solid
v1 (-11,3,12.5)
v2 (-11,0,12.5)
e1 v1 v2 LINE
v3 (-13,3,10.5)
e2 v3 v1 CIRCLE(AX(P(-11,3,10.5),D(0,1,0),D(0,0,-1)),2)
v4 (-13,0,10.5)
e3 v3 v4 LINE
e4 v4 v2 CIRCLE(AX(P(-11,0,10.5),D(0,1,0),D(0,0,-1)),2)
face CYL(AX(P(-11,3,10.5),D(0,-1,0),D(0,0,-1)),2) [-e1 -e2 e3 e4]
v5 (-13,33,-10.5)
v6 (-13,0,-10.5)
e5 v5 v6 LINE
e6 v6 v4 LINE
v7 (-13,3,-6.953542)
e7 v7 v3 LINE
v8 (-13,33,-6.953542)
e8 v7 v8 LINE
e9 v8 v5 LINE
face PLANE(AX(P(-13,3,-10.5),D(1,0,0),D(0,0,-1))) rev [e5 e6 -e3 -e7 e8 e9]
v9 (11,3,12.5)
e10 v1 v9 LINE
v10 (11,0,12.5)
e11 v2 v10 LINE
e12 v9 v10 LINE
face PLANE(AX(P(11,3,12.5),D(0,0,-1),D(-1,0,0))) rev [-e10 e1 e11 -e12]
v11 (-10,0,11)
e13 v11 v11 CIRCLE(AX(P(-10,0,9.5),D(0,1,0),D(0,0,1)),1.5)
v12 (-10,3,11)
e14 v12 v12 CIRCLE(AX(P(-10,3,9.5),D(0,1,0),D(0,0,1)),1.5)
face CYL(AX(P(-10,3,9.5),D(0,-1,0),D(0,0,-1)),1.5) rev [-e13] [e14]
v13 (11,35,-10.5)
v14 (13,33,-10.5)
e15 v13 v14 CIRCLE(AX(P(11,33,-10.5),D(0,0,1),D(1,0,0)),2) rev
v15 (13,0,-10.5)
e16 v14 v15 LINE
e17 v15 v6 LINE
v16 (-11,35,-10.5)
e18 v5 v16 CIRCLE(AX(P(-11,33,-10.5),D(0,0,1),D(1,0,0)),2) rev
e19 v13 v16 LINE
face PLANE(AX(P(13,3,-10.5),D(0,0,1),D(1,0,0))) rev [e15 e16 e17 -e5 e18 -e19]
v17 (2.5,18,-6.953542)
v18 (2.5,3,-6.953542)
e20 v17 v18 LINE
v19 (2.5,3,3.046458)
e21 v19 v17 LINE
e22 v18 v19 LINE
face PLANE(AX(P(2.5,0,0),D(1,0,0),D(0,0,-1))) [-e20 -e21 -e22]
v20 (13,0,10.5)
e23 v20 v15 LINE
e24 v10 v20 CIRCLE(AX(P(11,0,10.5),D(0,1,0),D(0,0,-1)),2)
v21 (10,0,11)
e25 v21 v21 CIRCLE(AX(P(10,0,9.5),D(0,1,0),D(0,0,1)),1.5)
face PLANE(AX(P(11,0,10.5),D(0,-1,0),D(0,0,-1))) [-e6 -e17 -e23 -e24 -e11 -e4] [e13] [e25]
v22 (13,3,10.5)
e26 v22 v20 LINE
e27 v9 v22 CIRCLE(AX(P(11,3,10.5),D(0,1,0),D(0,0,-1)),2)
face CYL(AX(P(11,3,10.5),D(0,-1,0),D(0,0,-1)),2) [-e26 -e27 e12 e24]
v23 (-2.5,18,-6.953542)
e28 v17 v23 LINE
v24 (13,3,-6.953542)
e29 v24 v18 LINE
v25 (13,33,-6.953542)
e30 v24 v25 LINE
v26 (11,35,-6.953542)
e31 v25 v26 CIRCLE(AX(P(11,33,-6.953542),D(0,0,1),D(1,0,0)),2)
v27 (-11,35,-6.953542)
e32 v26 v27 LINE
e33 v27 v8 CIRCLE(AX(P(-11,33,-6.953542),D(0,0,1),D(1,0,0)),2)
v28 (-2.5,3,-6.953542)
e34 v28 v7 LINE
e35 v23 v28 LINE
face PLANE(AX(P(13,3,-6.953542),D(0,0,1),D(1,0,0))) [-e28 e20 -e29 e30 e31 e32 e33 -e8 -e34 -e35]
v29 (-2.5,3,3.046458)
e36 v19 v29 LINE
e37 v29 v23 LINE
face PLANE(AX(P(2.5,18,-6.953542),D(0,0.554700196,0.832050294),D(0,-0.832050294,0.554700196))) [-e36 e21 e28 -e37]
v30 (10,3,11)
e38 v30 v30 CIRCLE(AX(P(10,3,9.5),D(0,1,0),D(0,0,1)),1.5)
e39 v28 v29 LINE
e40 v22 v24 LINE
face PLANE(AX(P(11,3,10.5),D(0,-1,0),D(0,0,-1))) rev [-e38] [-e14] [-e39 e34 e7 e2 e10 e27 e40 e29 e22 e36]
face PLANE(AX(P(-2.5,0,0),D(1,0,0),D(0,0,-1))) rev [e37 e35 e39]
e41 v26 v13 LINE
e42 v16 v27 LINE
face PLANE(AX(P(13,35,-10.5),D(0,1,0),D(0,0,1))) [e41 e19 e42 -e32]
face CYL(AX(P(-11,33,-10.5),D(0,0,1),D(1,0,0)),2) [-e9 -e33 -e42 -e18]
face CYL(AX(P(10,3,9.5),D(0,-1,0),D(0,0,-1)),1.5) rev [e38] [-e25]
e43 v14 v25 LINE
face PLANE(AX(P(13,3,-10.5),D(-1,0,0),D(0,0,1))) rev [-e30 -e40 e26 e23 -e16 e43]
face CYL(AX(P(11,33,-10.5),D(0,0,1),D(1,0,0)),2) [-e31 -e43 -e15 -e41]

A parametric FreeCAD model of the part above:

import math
import FreeCAD as App
import Part
import Sketcher

V = App.Vector


def edges_at(feature, points):
    """Names of the edges that pass closest to the given points."""
    edges = feature.Shape.Edges
    near = lambda p: min(range(len(edges)), key=lambda i: edges[i].distToShape(Part.Vertex(*p))[0])
    return sorted({f"Edge{near(p) + 1}" for p in points})

doc = App.newDocument("Part")
params = doc.addObject("Spreadsheet::Sheet", "Params")
for row, (alias, value) in enumerate([
    ("sketch1_diameter", "3 mm"),
    ("sketch1_radius", "2 mm"),
    ("sketch1_width", "26 mm"),
    ("sketch1_height", "21 mm"),
    ("pad1_length", "3 mm"),
    ("sketch2_width", "32 mm"),
    ("pad2_length", "26 mm"),
    ("sketch3_width", "15 mm"),
    ("sketch3_height", "10 mm"),
    ("pad3_length", "5 mm"),
    ("fillet_radius", "2 mm"),
    ("fillet2_radius", "2 mm"),
], start=1):
    params.set(f"A{row}", alias)
    params.set(f"B{row}", "=" + value)
    params.setAlias(f"B{row}", alias)

body = doc.addObject("PartDesign::Body", "Body")

# Sketch on XZ plane
sketch1 = body.newObject("Sketcher::SketchObject", "Sketch")
sketch1.AttachmentSupport = (doc.getObject("XZ_Plane"), [""])
sketch1.MapMode = "FlatFace"
sketch1.addGeometry(Part.LineSegment(V(13, -10.5, 0), V(-13, -10.5, 0)), False)
sketch1.addGeometry(Part.LineSegment(V(-13, -10.5, 0), V(-13, 10.5, 0)), False)
sketch1.addGeometry(Part.ArcOfCircle(Part.Circle(V(-11, 10.5, 0), V(0, 0, 1), 2), math.radians(90), math.radians(180)), False)
sketch1.addGeometry(Part.LineSegment(V(-11, 12.5, 0), V(11, 12.5, 0)), False)
sketch1.addGeometry(Part.ArcOfCircle(Part.Circle(V(11, 10.5, 0), V(0, 0, 1), 2), math.radians(0), math.radians(90)), False)
sketch1.addGeometry(Part.LineSegment(V(13, 10.5, 0), V(13, -10.5, 0)), False)
sketch1.addGeometry(Part.Circle(V(-10, 9.5, 0), V(0, 0, 1), 1.5), False)
sketch1.addGeometry(Part.Circle(V(10, 9.5, 0), V(0, 0, 1), 1.5), False)
sketch1.addConstraint(Sketcher.Constraint("Coincident", 0, 2, 1, 1))
sketch1.addConstraint(Sketcher.Constraint("Tangent", 1, 2, 2, 2))
sketch1.addConstraint(Sketcher.Constraint("Tangent", 2, 1, 3, 1))
sketch1.addConstraint(Sketcher.Constraint("Tangent", 3, 2, 4, 2))
sketch1.addConstraint(Sketcher.Constraint("Tangent", 4, 1, 5, 1))
sketch1.addConstraint(Sketcher.Constraint("Coincident", 5, 2, 0, 1))
sketch1.addConstraint(Sketcher.Constraint("Horizontal", 0))
sketch1.addConstraint(Sketcher.Constraint("Vertical", 1))
sketch1.addConstraint(Sketcher.Constraint("Horizontal", 3))
sketch1.addConstraint(Sketcher.Constraint("Vertical", 5))
sketch1.addConstraint(Sketcher.Constraint("Equal", 2, 4))
sketch1.addConstraint(Sketcher.Constraint("Equal", 6, 7))
sketch1.addConstraint(Sketcher.Constraint("Symmetric", 0, 2, 4, 1, -1, 1))
sketch1.addConstraint(Sketcher.Constraint("Symmetric", 6, 3, 7, 3, -2))
sketch1.addConstraint(Sketcher.Constraint("Diameter", 6, 3.0))
sketch1.addConstraint(Sketcher.Constraint("Radius", 2, 2.0))
sketch1.addConstraint(Sketcher.Constraint("DistanceX", 0, 2, 0, 1, 26.0))
sketch1.addConstraint(Sketcher.Constraint("DistanceY", 1, 1, 1, 2, 21.0))
sketch1.addConstraint(Sketcher.Constraint("DistanceX", 6, 3, -1, 1, 10.0))
sketch1.addConstraint(Sketcher.Constraint("DistanceY", 6, 3, 2, 3, 1.0))
sketch1.setExpression("Constraints[14]", "Params.sketch1_diameter")
sketch1.setExpression("Constraints[15]", "Params.sketch1_radius")
sketch1.setExpression("Constraints[16]", "Params.sketch1_width")
sketch1.setExpression("Constraints[17]", "Params.sketch1_height")
pad1 = body.newObject("PartDesign::Pad", "Pad")
pad1.Profile = sketch1
pad1.setExpression("Length", "Params.pad1_length")
pad1.Reversed = True

# Sketch on YZ plane
sketch2 = body.newObject("Sketcher::SketchObject", "Sketch001")
sketch2.AttachmentSupport = (doc.getObject("YZ_Plane"), [""])
sketch2.MapMode = "FlatFace"
sketch2.AttachmentOffset = App.Placement(V(0, 0, -13), App.Rotation())
sketch2.addGeometry(Part.LineSegment(V(35, -10.5, 0), V(3, -10.5, 0)), False)
sketch2.addGeometry(Part.LineSegment(V(3, -10.5, 0), V(3, -7, 0)), False)
sketch2.addGeometry(Part.LineSegment(V(3, -7, 0), V(35, -7, 0)), False)
sketch2.addGeometry(Part.LineSegment(V(35, -7, 0), V(35, -10.5, 0)), False)
sketch2.addConstraint(Sketcher.Constraint("Coincident", 0, 2, 1, 1))
sketch2.addConstraint(Sketcher.Constraint("Coincident", 1, 2, 2, 1))
sketch2.addConstraint(Sketcher.Constraint("Coincident", 2, 2, 3, 1))
sketch2.addConstraint(Sketcher.Constraint("Coincident", 3, 2, 0, 1))
sketch2.addConstraint(Sketcher.Constraint("Horizontal", 0))
sketch2.addConstraint(Sketcher.Constraint("Vertical", 1))
sketch2.addConstraint(Sketcher.Constraint("Horizontal", 2))
sketch2.addConstraint(Sketcher.Constraint("Vertical", 3))
sketch2.addConstraint(Sketcher.Constraint("DistanceX", 0, 2, 0, 1, 32.0))
sketch2.addConstraint(Sketcher.Constraint("DistanceX", -1, 1, 0, 2, 3.0))
sketch2.addConstraint(Sketcher.Constraint("DistanceY", 0, 2, -1, 1, 10.5))
sketch2.addConstraint(Sketcher.Constraint("DistanceY", 1, 1, 1, 2, 3.546458))
sketch2.setExpression("Constraints[8]", "Params.sketch2_width")
pad2 = body.newObject("PartDesign::Pad", "Pad001")
pad2.Profile = sketch2
pad2.setExpression("Length", "Params.pad2_length")

# Sketch on YZ plane
sketch3 = body.newObject("Sketcher::SketchObject", "Sketch002")
sketch3.AttachmentSupport = (doc.getObject("YZ_Plane"), [""])
sketch3.MapMode = "FlatFace"
sketch3.AttachmentOffset = App.Placement(V(0, 0, -2.5), App.Rotation())
sketch3.addGeometry(Part.LineSegment(V(3, 3, 0), V(18, -7, 0)), False)
sketch3.addGeometry(Part.LineSegment(V(18, -7, 0), V(3, -7, 0)), False)
sketch3.addGeometry(Part.LineSegment(V(3, -7, 0), V(3, 3, 0)), False)
sketch3.addConstraint(Sketcher.Constraint("Coincident", 0, 2, 1, 1))
sketch3.addConstraint(Sketcher.Constraint("Coincident", 1, 2, 2, 1))
sketch3.addConstraint(Sketcher.Constraint("Coincident", 2, 2, 0, 1))
sketch3.addConstraint(Sketcher.Constraint("Horizontal", 1))
sketch3.addConstraint(Sketcher.Constraint("Vertical", 2))
sketch3.addConstraint(Sketcher.Constraint("DistanceX", 1, 2, 1, 1, 15.0))
sketch3.addConstraint(Sketcher.Constraint("DistanceY", 2, 1, 2, 2, 10.0))
sketch3.addConstraint(Sketcher.Constraint("DistanceX", -1, 1, 0, 2, 18.0))
sketch3.addConstraint(Sketcher.Constraint("DistanceY", 0, 2, -1, 1, 6.953542))
sketch3.setExpression("Constraints[5]", "Params.sketch3_width")
sketch3.setExpression("Constraints[6]", "Params.sketch3_height")
pad3 = body.newObject("PartDesign::Pad", "Pad002")
pad3.Profile = sketch3
pad3.setExpression("Length", "Params.pad3_length")
doc.recompute()

fillet = body.newObject("PartDesign::Fillet", "Fillet")
fillet.Base = (pad3, edges_at(pad3, [(-13, 35, -8.727)]))
fillet.setExpression("Radius", "Params.fillet_radius")
doc.recompute()

fillet2 = body.newObject("PartDesign::Fillet", "Fillet001")
fillet2.Base = (fillet, edges_at(fillet, [(13, 35, -8.727)]))
fillet2.setExpression("Radius", "Params.fillet2_radius")

doc.recompute()
